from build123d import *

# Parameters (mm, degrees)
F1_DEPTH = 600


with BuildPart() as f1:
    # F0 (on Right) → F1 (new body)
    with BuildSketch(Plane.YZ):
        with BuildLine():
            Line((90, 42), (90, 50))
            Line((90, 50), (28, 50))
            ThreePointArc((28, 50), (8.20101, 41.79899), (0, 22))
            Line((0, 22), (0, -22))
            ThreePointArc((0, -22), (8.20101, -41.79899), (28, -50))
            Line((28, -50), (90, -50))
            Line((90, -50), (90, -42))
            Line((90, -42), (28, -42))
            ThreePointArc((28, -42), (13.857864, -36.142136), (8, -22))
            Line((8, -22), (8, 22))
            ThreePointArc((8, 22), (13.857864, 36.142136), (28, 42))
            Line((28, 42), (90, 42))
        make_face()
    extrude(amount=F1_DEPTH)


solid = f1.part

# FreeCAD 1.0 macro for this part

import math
import FreeCAD as App
import Part
import Sketcher
from FreeCAD import Vector

doc = App.newDocument("Part")
body = doc.addObject("PartDesign::Body", "Body")

sketch1 = doc.addObject("Sketcher::SketchObject", "Sketch")
body.addObject(sketch1)
sketch1.AttachmentSupport = (doc.YZ_Plane, [""])
sketch1.MapMode = "FlatFace"
sketch1.addGeometry(Part.LineSegment(Vector(90, 42, 0), Vector(90, 50, 0)), False)
sketch1.addGeometry(Part.LineSegment(Vector(90, 50, 0), Vector(28, 50, 0)), False)
sketch1.addGeometry(Part.ArcOfCircle(Part.Circle(Vector(28, 22, 0), Vector(0, 0, 1), 28), math.radians(90), math.radians(180)), False)
sketch1.addGeometry(Part.LineSegment(Vector(0, 22, 0), Vector(0, -22, 0)), False)
sketch1.addGeometry(Part.ArcOfCircle(Part.Circle(Vector(28, -22, 0), Vector(0, 0, 1), 28), math.radians(180), math.radians(270)), False)
sketch1.addGeometry(Part.LineSegment(Vector(28, -50, 0), Vector(90, -50, 0)), False)
sketch1.addGeometry(Part.LineSegment(Vector(90, -50, 0), Vector(90, -42, 0)), False)
sketch1.addGeometry(Part.LineSegment(Vector(90, -42, 0), Vector(28, -42, 0)), False)
sketch1.addGeometry(Part.ArcOfCircle(Part.Circle(Vector(28, -22, 0), Vector(0, 0, 1), 20), math.radians(180), math.radians(270)), False)
sketch1.addGeometry(Part.LineSegment(Vector(8, -22, 0), Vector(8, 22, 0)), False)
sketch1.addGeometry(Part.ArcOfCircle(Part.Circle(Vector(28, 22, 0), Vector(0, 0, 1), 20), math.radians(90), math.radians(180)), False)
sketch1.addGeometry(Part.LineSegment(Vector(28, 42, 0), Vector(90, 42, 0)), False)
sketch1.addConstraint(Sketcher.Constraint("Coincident", 0, 2, 1, 1))
sketch1.addConstraint(Sketcher.Constraint("Tangent", 1, 2, 2, 1))
sketch1.addConstraint(Sketcher.Constraint("Tangent", 2, 2, 3, 1))
sketch1.addConstraint(Sketcher.Constraint("Tangent", 3, 2, 4, 1))
sketch1.addConstraint(Sketcher.Constraint("Tangent", 4, 2, 5, 1))
sketch1.addConstraint(Sketcher.Constraint("Coincident", 5, 2, 6, 1))
sketch1.addConstraint(Sketcher.Constraint("Coincident", 6, 2, 7, 1))
sketch1.addConstraint(Sketcher.Constraint("Tangent", 7, 2, 8, 2))
sketch1.addConstraint(Sketcher.Constraint("Tangent", 8, 1, 9, 1))
sketch1.addConstraint(Sketcher.Constraint("Tangent", 9, 2, 10, 2))
sketch1.addConstraint(Sketcher.Constraint("Tangent", 10, 1, 11, 1))
sketch1.addConstraint(Sketcher.Constraint("Coincident", 11, 2, 0, 1))
sketch1.addConstraint(Sketcher.Constraint("Vertical", 0))
sketch1.addConstraint(Sketcher.Constraint("Horizontal", 1))
sketch1.addConstraint(Sketcher.Constraint("Vertical", 3))
sketch1.addConstraint(Sketcher.Constraint("Horizontal", 5))
sketch1.addConstraint(Sketcher.Constraint("Vertical", 6))
sketch1.addConstraint(Sketcher.Constraint("Horizontal", 7))
sketch1.addConstraint(Sketcher.Constraint("Vertical", 9))
sketch1.addConstraint(Sketcher.Constraint("Horizontal", 11))
sketch1.addConstraint(Sketcher.Constraint("Coincident", 8, 3, 4, 3))
sketch1.addConstraint(Sketcher.Constraint("Coincident", 10, 3, 2, 3))
sketch1.addConstraint(Sketcher.Constraint("Equal", 2, 4))
sketch1.addConstraint(Sketcher.Constraint("Symmetric", 2, 2, 3, 2, -1, 1))
sketch1.addConstraint(Sketcher.Constraint("Vertical", 0, 2, 5, 2))
sketch1.addConstraint(Sketcher.Constraint("Radius", 2, 28.0))
sketch1.addConstraint(Sketcher.Constraint("Radius", 8, 19.999999))
sketch1.addConstraint(Sketcher.Constraint("DistanceX", 1, 2, 1, 1, 62.0))
sketch1.addConstraint(Sketcher.Constraint("DistanceY", 3, 2, 3, 1, 44.0))
pad1 = doc.addObject("PartDesign::Pad", "Pad")
body.addObject(pad1)
pad1.Profile = sketch1
pad1.Length = 600

doc.recompute()
